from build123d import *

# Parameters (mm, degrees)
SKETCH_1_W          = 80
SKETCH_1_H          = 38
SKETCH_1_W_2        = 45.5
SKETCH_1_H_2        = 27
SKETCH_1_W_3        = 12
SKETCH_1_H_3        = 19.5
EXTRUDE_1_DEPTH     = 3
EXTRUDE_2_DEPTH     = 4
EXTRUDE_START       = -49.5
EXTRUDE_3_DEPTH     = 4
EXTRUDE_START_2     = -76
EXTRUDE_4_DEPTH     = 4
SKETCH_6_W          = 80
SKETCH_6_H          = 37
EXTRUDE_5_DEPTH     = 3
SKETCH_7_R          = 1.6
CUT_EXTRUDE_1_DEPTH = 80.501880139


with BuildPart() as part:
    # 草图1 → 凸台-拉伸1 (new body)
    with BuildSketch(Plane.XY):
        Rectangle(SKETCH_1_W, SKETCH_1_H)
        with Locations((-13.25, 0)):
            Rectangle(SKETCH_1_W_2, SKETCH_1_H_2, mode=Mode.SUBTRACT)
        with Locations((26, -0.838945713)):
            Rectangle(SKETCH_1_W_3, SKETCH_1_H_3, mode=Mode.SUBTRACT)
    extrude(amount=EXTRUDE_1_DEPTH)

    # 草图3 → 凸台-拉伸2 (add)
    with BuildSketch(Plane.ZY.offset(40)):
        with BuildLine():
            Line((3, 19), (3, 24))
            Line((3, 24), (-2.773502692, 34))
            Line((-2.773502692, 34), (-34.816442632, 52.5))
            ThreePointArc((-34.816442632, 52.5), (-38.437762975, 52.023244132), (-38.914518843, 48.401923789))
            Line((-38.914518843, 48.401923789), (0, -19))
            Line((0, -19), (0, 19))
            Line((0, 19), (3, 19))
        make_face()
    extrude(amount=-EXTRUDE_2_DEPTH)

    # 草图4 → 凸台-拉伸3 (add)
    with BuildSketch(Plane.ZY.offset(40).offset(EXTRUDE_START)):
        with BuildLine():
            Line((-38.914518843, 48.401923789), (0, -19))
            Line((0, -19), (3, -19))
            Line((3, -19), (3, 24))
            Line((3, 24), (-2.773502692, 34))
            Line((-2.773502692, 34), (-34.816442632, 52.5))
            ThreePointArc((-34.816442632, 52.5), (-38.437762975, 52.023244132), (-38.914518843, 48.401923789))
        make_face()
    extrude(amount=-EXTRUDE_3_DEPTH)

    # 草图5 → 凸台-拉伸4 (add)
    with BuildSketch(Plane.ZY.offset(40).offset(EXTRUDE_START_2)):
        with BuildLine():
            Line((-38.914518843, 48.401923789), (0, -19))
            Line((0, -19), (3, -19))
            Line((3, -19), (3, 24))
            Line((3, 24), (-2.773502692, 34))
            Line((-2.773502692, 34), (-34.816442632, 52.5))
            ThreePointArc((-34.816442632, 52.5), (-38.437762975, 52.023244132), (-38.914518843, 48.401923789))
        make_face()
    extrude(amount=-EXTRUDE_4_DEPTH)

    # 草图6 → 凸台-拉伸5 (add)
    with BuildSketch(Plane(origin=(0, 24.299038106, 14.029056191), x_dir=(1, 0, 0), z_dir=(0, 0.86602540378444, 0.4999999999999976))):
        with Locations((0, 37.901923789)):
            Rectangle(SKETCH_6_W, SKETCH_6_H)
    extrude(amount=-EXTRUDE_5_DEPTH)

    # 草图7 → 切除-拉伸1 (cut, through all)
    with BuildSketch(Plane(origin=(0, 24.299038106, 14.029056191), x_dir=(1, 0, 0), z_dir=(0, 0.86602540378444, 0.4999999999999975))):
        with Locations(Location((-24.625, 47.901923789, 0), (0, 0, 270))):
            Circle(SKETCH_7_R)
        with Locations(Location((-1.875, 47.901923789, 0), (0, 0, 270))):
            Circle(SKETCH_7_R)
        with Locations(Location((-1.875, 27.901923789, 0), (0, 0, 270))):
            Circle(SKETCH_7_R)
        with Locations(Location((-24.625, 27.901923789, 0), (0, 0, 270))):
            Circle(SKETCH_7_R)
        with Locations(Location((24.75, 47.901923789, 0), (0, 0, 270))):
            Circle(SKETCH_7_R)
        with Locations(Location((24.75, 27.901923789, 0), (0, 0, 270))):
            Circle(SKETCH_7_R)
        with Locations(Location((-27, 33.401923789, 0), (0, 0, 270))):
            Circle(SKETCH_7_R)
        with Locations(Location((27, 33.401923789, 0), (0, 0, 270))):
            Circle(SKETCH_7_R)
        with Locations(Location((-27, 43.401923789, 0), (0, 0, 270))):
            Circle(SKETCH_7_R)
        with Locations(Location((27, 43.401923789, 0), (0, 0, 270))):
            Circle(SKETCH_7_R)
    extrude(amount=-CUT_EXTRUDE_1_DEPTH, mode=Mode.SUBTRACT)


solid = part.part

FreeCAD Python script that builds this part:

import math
import FreeCAD as App
import Part
import Sketcher

V = App.Vector
Q = App.Units.Quantity


def add_polygon(sketch, points):
    """Adds a closed chain of lines whose ends are joined by coincident constraints."""
    first, n = sketch.GeometryCount, len(points)
    for a, b in zip(points, points[1:] + points[:1]):
        sketch.addGeometry(Part.LineSegment(App.Vector(*a, 0), App.Vector(*b, 0)), False)
    for i in range(n):
        sketch.addConstraint(Sketcher.Constraint("Coincident", first + i, 2, first + (i + 1) % n, 1))

doc = App.newDocument("Part")
params = doc.addObject("Spreadsheet::Sheet", "Params")
for row, (alias, value) in enumerate([
    ("sketch1_width", "80 mm"),
    ("sketch1_width2", "12 mm"),
    ("sketch1_height", "38 mm"),
    ("sketch1_height2", "27 mm"),
    ("sketch1_width3", "45.5 mm"),
    ("pad1_length", "3 mm"),
    ("sketch2_radius", "3 mm"),
    ("sketch2_width", "5 mm"),
    ("sketch2_width2", "38 mm"),
    ("sketch2_height", "3 mm"),
    ("pad2_length", "4 mm"),
    ("sketch3_radius", "3 mm"),
    ("sketch3_width", "43 mm"),
    ("sketch3_height", "3 mm"),
    ("pad3_length", "4 mm"),
    ("sketch4_radius", "3 mm"),
    ("sketch4_width", "43 mm"),
    ("sketch4_height", "3 mm"),
    ("pad4_length", "4 mm"),
    ("sketch5_width", "80 mm"),
    ("sketch5_height", "37 mm"),
    ("pad5_length", "3 mm"),
    ("sketch6_diameter", "3.2 mm"),
], start=1):
    params.set(f"A{row}", alias)
    params.set(f"B{row}", "=" + value)
    params.setAlias(f"B{row}", alias)

body = doc.addObject("PartDesign::Body", "Body")

sketch1 = body.newObject("Sketcher::SketchObject", "Sketch")
sketch1.AttachmentSupport = (doc.getObject("XY_Plane"), [""])
sketch1.MapMode = "FlatFace"
add_polygon(sketch1, [(-40, 19), (-40, -19), (40, -19), (40, 19)])
add_polygon(sketch1, [(32, -10.588946), (20, -10.588946), (20, 8.911054), (32, 8.911054)])
add_polygon(sketch1, [(9.5, -13.5), (-36, -13.5), (-36, 13.5), (9.5, 13.5)])
sketch1.addConstraint(Sketcher.Constraint("Vertical", 0))
sketch1.addConstraint(Sketcher.Constraint("Horizontal", 1))
sketch1.addConstraint(Sketcher.Constraint("Vertical", 2))
sketch1.addConstraint(Sketcher.Constraint("Horizontal", 3))
sketch1.addConstraint(Sketcher.Constraint("Horizontal", 4))
sketch1.addConstraint(Sketcher.Constraint("Vertical", 5))
sketch1.addConstraint(Sketcher.Constraint("Horizontal", 6))
sketch1.addConstraint(Sketcher.Constraint("Vertical", 7))
sketch1.addConstraint(Sketcher.Constraint("Horizontal", 8))
sketch1.addConstraint(Sketcher.Constraint("Vertical", 9))
sketch1.addConstraint(Sketcher.Constraint("Horizontal", 10))
sketch1.addConstraint(Sketcher.Constraint("Vertical", 11))
sketch1.addConstraint(Sketcher.Constraint("Symmetric", 0, 2, 2, 2, -1, 1))
sketch1.addConstraint(Sketcher.Constraint("DistanceX", 1, 1, 1, 2, 80.0))
sketch1.addConstraint(Sketcher.Constraint("DistanceX", 4, 2, 4, 1, 12.0))
sketch1.addConstraint(Sketcher.Constraint("DistanceY", 0, 2, 0, 1, 38.0))
sketch1.addConstraint(Sketcher.Constraint("DistanceY", 9, 1, 9, 2, 27.0))
sketch1.addConstraint(Sketcher.Constraint("DistanceX", 8, 2, 8, 1, 45.5))
sketch1.addConstraint(Sketcher.Constraint("DistanceY", 5, 1, 5, 2, 19.5))
sketch1.addConstraint(Sketcher.Constraint("DistanceX", -1, 1, 4, 2, 20.0))
sketch1.addConstraint(Sketcher.Constraint("DistanceX", 8, 2, -1, 1, 36.0))
sketch1.addConstraint(Sketcher.Constraint("DistanceY", 8, 2, -1, 1, 13.5))
sketch1.addConstraint(Sketcher.Constraint("DistanceY", 4, 2, -1, 1, 10.588946))
sketch1.setExpression("Constraints[25]", "Params.sketch1_width")
sketch1.setExpression("Constraints[26]", "Params.sketch1_width2")
sketch1.setExpression("Constraints[27]", "Params.sketch1_height")
sketch1.setExpression("Constraints[28]", "Params.sketch1_height2")
sketch1.setExpression("Constraints[29]", "Params.sketch1_width3")
pad1 = body.newObject("PartDesign::Pad", "Pad")
pad1.Profile = sketch1
pad1.setExpression("Length", "Params.pad1_length")

sketch2 = body.newObject("Sketcher::SketchObject", "Sketch001")
sketch2.AttachmentSupport = (doc.getObject("YZ_Plane"), [""])
sketch2.MapMode = "FlatFace"
sketch2.AttachmentOffset = App.Placement(V(0, 0, -40), App.Rotation())
sketch2.addGeometry(Part.LineSegment(V(19, 3, 0), V(24, 3, 0)), False)
sketch2.addGeometry(Part.LineSegment(V(24, 3, 0), V(34, -2.773503, 0)), False)
sketch2.addGeometry(Part.LineSegment(V(34, -2.773503, 0), V(52.5, -34.816443, 0)), False)
sketch2.addGeometry(Part.ArcOfCircle(Part.Circle(V(49.901924, -36.316443, 0), V(0, 0, 1), 3), math.radians(-120), math.radians(30)), False)
sketch2.addGeometry(Part.LineSegment(V(48.401924, -38.914519, 0), V(-19, 0, 0)), False)
sketch2.addGeometry(Part.LineSegment(V(-19, 0, 0), V(19, 0, 0)), False)
sketch2.addGeometry(Part.LineSegment(V(19, 0, 0), V(19, 3, 0)), False)
sketch2.addConstraint(Sketcher.Constraint("Coincident", 0, 2, 1, 1))
sketch2.addConstraint(Sketcher.Constraint("Coincident", 1, 2, 2, 1))
sketch2.addConstraint(Sketcher.Constraint("Tangent", 2, 2, 3, 2))
sketch2.addConstraint(Sketcher.Constraint("Tangent", 3, 1, 4, 1))
sketch2.addConstraint(Sketcher.Constraint("Coincident", 4, 2, 5, 1))
sketch2.addConstraint(Sketcher.Constraint("Coincident", 5, 2, 6, 1))
sketch2.addConstraint(Sketcher.Constraint("Coincident", 6, 2, 0, 1))
sketch2.addConstraint(Sketcher.Constraint("Horizontal", 0))
sketch2.addConstraint(Sketcher.Constraint("Horizontal", 5))
sketch2.addConstraint(Sketcher.Constraint("Vertical", 6))
sketch2.addConstraint(Sketcher.Constraint("Symmetric", 4, 2, 5, 2, -1, 1))
sketch2.addConstraint(Sketcher.Constraint("Parallel", 1, 4))
sketch2.addConstraint(Sketcher.Constraint("Radius", 3, 3.0))
sketch2.addConstraint(Sketcher.Constraint("DistanceX", 0, 1, 0, 2, 5.0))
sketch2.addConstraint(Sketcher.Constraint("DistanceX", 5, 1, 5, 2, 38.0))
sketch2.addConstraint(Sketcher.Constraint("DistanceY", 6, 1, 6, 2, 3.0))
sketch2.addConstraint(Sketcher.Constraint("Angle", 1, Q("-30 deg")))
sketch2.addConstraint(Sketcher.Constraint("Angle", 2, Q("-60 deg")))
sketch2.addConstraint(Sketcher.Constraint("DistanceX", -1, 1, 1, 2, 34.0))
sketch2.setExpression("Constraints[12]", "Params.sketch2_radius")
sketch2.setExpression("Constraints[13]", "Params.sketch2_width")
sketch2.setExpression("Constraints[14]", "Params.sketch2_width2")
sketch2.setExpression("Constraints[15]", "Params.sketch2_height")
pad2 = body.newObject("PartDesign::Pad", "Pad001")
pad2.Profile = sketch2
pad2.setExpression("Length", "Params.pad2_length")

sketch3 = body.newObject("Sketcher::SketchObject", "Sketch002")
sketch3.AttachmentSupport = (doc.getObject("YZ_Plane"), [""])
sketch3.MapMode = "FlatFace"
sketch3.AttachmentOffset = App.Placement(V(0, 0, 9.5), App.Rotation())
sketch3.addGeometry(Part.LineSegment(V(48.401924, -38.914519, 0), V(-19, 0, 0)), False)
sketch3.addGeometry(Part.LineSegment(V(-19, 0, 0), V(-19, 3, 0)), False)
sketch3.addGeometry(Part.LineSegment(V(-19, 3, 0), V(24, 3, 0)), False)
sketch3.addGeometry(Part.LineSegment(V(24, 3, 0), V(34, -2.773503, 0)), False)
sketch3.addGeometry(Part.LineSegment(V(34, -2.773503, 0), V(52.5, -34.816443, 0)), False)
sketch3.addGeometry(Part.ArcOfCircle(Part.Circle(V(49.901924, -36.316443, 0), V(0, 0, 1), 3), math.radians(-120), math.radians(30)), False)
sketch3.addConstraint(Sketcher.Constraint("Coincident", 0, 2, 1, 1))
sketch3.addConstraint(Sketcher.Constraint("Coincident", 1, 2, 2, 1))
sketch3.addConstraint(Sketcher.Constraint("Coincident", 2, 2, 3, 1))
sketch3.addConstraint(Sketcher.Constraint("Coincident", 3, 2, 4, 1))
sketch3.addConstraint(Sketcher.Constraint("Tangent", 4, 2, 5, 2))
sketch3.addConstraint(Sketcher.Constraint("Tangent", 5, 1, 0, 1))
sketch3.addConstraint(Sketcher.Constraint("Vertical", 1))
sketch3.addConstraint(Sketcher.Constraint("Horizontal", 2))
sketch3.addConstraint(Sketcher.Constraint("PointOnObject", 0, 2, -1))
sketch3.addConstraint(Sketcher.Constraint("Parallel", 0, 3))
sketch3.addConstraint(Sketcher.Constraint("Radius", 5, 3.0))
sketch3.addConstraint(Sketcher.Constraint("DistanceX", 2, 1, 2, 2, 43.0))
sketch3.addConstraint(Sketcher.Constraint("DistanceY", 1, 1, 1, 2, 3.0))
sketch3.addConstraint(Sketcher.Constraint("Angle", 0, Q("150 deg")))
sketch3.addConstraint(Sketcher.Constraint("Angle", 4, Q("-60 deg")))
sketch3.addConstraint(Sketcher.Constraint("DistanceX", 0, 2, -1, 1, 19.0))
sketch3.addConstraint(Sketcher.Constraint("DistanceX", -1, 1, 3, 2, 34.0))
sketch3.setExpression("Constraints[10]", "Params.sketch3_radius")
sketch3.setExpression("Constraints[11]", "Params.sketch3_width")
sketch3.setExpression("Constraints[12]", "Params.sketch3_height")
pad3 = body.newObject("PartDesign::Pad", "Pad002")
pad3.Profile = sketch3
pad3.setExpression("Length", "Params.pad3_length")

sketch4 = body.newObject("Sketcher::SketchObject", "Sketch003")
sketch4.AttachmentSupport = (doc.getObject("YZ_Plane"), [""])
sketch4.MapMode = "FlatFace"
sketch4.AttachmentOffset = App.Placement(V(0, 0, 36), App.Rotation())
sketch4.addGeometry(Part.LineSegment(V(48.401924, -38.914519, 0), V(-19, 0, 0)), False)
sketch4.addGeometry(Part.LineSegment(V(-19, 0, 0), V(-19, 3, 0)), False)
sketch4.addGeometry(Part.LineSegment(V(-19, 3, 0), V(24, 3, 0)), False)
sketch4.addGeometry(Part.LineSegment(V(24, 3, 0), V(34, -2.773503, 0)), False)
sketch4.addGeometry(Part.LineSegment(V(34, -2.773503, 0), V(52.5, -34.816443, 0)), False)
sketch4.addGeometry(Part.ArcOfCircle(Part.Circle(V(49.901924, -36.316443, 0), V(0, 0, 1), 3), math.radians(-120), math.radians(30)), False)
sketch4.addConstraint(Sketcher.Constraint("Coincident", 0, 2, 1, 1))
sketch4.addConstraint(Sketcher.Constraint("Coincident", 1, 2, 2, 1))
sketch4.addConstraint(Sketcher.Constraint("Coincident", 2, 2, 3, 1))
sketch4.addConstraint(Sketcher.Constraint("Coincident", 3, 2, 4, 1))
sketch4.addConstraint(Sketcher.Constraint("Tangent", 4, 2, 5, 2))
sketch4.addConstraint(Sketcher.Constraint("Tangent", 5, 1, 0, 1))
sketch4.addConstraint(Sketcher.Constraint("Vertical", 1))
sketch4.addConstraint(Sketcher.Constraint("Horizontal", 2))
sketch4.addConstraint(Sketcher.Constraint("PointOnObject", 0, 2, -1))
sketch4.addConstraint(Sketcher.Constraint("Parallel", 0, 3))
sketch4.addConstraint(Sketcher.Constraint("Radius", 5, 3.0))
sketch4.addConstraint(Sketcher.Constraint("DistanceX", 2, 1, 2, 2, 43.0))
sketch4.addConstraint(Sketcher.Constraint("DistanceY", 1, 1, 1, 2, 3.0))
sketch4.addConstraint(Sketcher.Constraint("Angle", 0, Q("150 deg")))
sketch4.addConstraint(Sketcher.Constraint("Angle", 4, Q("-60 deg")))
sketch4.addConstraint(Sketcher.Constraint("DistanceX", 0, 2, -1, 1, 19.0))
sketch4.addConstraint(Sketcher.Constraint("DistanceX", -1, 1, 3, 2, 34.0))
sketch4.setExpression("Constraints[10]", "Params.sketch4_radius")
sketch4.setExpression("Constraints[11]", "Params.sketch4_width")
sketch4.setExpression("Constraints[12]", "Params.sketch4_height")
pad4 = body.newObject("PartDesign::Pad", "Pad003")
pad4.Profile = sketch4
pad4.setExpression("Length", "Params.pad4_length")

sketch5 = body.newObject("Sketcher::SketchObject", "Sketch004")
sketch5.Placement = App.Placement(V(0, 24.299038, 14.029056), App.Rotation(V(1, 0, 0), V(0, 0.5, -0.866025404), V(0, 0.866025404, 0.5), "ZXY"))
add_polygon(sketch5, [(-40, 56.401924), (-40, 19.401924), (40, 19.401924), (40, 56.401924)])
sketch5.addConstraint(Sketcher.Constraint("Vertical", 0))
sketch5.addConstraint(Sketcher.Constraint("Horizontal", 1))
sketch5.addConstraint(Sketcher.Constraint("Vertical", 2))
sketch5.addConstraint(Sketcher.Constraint("Horizontal", 3))
sketch5.addConstraint(Sketcher.Constraint("DistanceX", 1, 1, 1, 2, 80.0))
sketch5.addConstraint(Sketcher.Constraint("DistanceY", 0, 2, 0, 1, 37.0))
sketch5.addConstraint(Sketcher.Constraint("DistanceX", 0, 2, -1, 1, 40.0))
sketch5.addConstraint(Sketcher.Constraint("DistanceY", -1, 1, 0, 2, 19.401924))
sketch5.setExpression("Constraints[8]", "Params.sketch5_width")
sketch5.setExpression("Constraints[9]", "Params.sketch5_height")
pad5 = body.newObject("PartDesign::Pad", "Pad004")
pad5.Profile = sketch5
pad5.setExpression("Length", "Params.pad5_length")
pad5.Reversed = True

sketch6 = body.newObject("Sketcher::SketchObject", "Sketch005")
sketch6.Placement = App.Placement(V(0, 24.299038, 14.029056), App.Rotation(V(1, 0, 0), V(0, 0.5, -0.866025404), V(0, 0.866025404, 0.5), "ZXY"))
sketch6.addGeometry(Part.Circle(V(-24.625, 47.901924, 0), V(0, 0, 1), 1.6), False)
sketch6.addGeometry(Part.Circle(V(-1.875, 47.901924, 0), V(0, 0, 1), 1.6), False)
sketch6.addGeometry(Part.Circle(V(-1.875, 27.901924, 0), V(0, 0, 1), 1.6), False)
sketch6.addGeometry(Part.Circle(V(-24.625, 27.901924, 0), V(0, 0, 1), 1.6), False)
sketch6.addGeometry(Part.Circle(V(24.75, 47.901924, 0), V(0, 0, 1), 1.6), False)
sketch6.addGeometry(Part.Circle(V(24.75, 27.901924, 0), V(0, 0, 1), 1.6), False)
sketch6.addGeometry(Part.Circle(V(-27, 33.401924, 0), V(0, 0, 1), 1.6), False)
sketch6.addGeometry(Part.Circle(V(27, 33.401924, 0), V(0, 0, 1), 1.6), False)
sketch6.addGeometry(Part.Circle(V(-27, 43.401924, 0), V(0, 0, 1), 1.6), False)
sketch6.addGeometry(Part.Circle(V(27, 43.401924, 0), V(0, 0, 1), 1.6), False)
sketch6.addConstraint(Sketcher.Constraint("Equal", 0, 1))
sketch6.addConstraint(Sketcher.Constraint("Equal", 1, 2))
sketch6.addConstraint(Sketcher.Constraint("Equal", 2, 3))
sketch6.addConstraint(Sketcher.Constraint("Equal", 3, 4))
sketch6.addConstraint(Sketcher.Constraint("Equal", 4, 5))
sketch6.addConstraint(Sketcher.Constraint("Equal", 5, 6))
sketch6.addConstraint(Sketcher.Constraint("Equal", 6, 7))
sketch6.addConstraint(Sketcher.Constraint("Equal", 7, 8))
sketch6.addConstraint(Sketcher.Constraint("Equal", 8, 9))
sketch6.addConstraint(Sketcher.Constraint("Symmetric", 6, 3, 7, 3, -2))
sketch6.addConstraint(Sketcher.Constraint("Symmetric", 8, 3, 9, 3, -2))
sketch6.addConstraint(Sketcher.Constraint("Horizontal", 0, 3, 1, 3))
sketch6.addConstraint(Sketcher.Constraint("Horizontal", 2, 3, 3, 3))
sketch6.addConstraint(Sketcher.Constraint("Horizontal", 1, 3, 4, 3))
sketch6.addConstraint(Sketcher.Constraint("Horizontal", 3, 3, 5, 3))
sketch6.addConstraint(Sketcher.Constraint("Vertical", 1, 3, 2, 3))
sketch6.addConstraint(Sketcher.Constraint("Vertical", 0, 3, 3, 3))
sketch6.addConstraint(Sketcher.Constraint("Vertical", 4, 3, 5, 3))
sketch6.addConstraint(Sketcher.Constraint("Vertical", 6, 3, 8, 3))
sketch6.addConstraint(Sketcher.Constraint("Diameter", 0, 3.2))
sketch6.addConstraint(Sketcher.Constraint("DistanceX", 6, 3, -1, 1, 27.0))
sketch6.addConstraint(Sketcher.Constraint("DistanceY", 2, 3, 1, 3, 20.0))
sketch6.addConstraint(Sketcher.Constraint("DistanceY", 6, 3, 8, 3, 10.0))
sketch6.addConstraint(Sketcher.Constraint("DistanceY", 3, 3, 6, 3, 5.5))
sketch6.addConstraint(Sketcher.Constraint("DistanceX", -1, 1, 4, 3, 24.75))
sketch6.addConstraint(Sketcher.Constraint("DistanceX", 0, 3, 1, 3, 22.75))
sketch6.addConstraint(Sketcher.Constraint("DistanceX", 0, 3, -1, 1, 24.625))
sketch6.addConstraint(Sketcher.Constraint("DistanceY", -1, 1, 0, 3, 47.901924))
sketch6.setExpression("Constraints[19]", "Params.sketch6_diameter")
pocket1 = body.newObject("PartDesign::Pocket", "Pocket")
pocket1.Profile = sketch6
pocket1.Type = "ThroughAll"

doc.recompute()
